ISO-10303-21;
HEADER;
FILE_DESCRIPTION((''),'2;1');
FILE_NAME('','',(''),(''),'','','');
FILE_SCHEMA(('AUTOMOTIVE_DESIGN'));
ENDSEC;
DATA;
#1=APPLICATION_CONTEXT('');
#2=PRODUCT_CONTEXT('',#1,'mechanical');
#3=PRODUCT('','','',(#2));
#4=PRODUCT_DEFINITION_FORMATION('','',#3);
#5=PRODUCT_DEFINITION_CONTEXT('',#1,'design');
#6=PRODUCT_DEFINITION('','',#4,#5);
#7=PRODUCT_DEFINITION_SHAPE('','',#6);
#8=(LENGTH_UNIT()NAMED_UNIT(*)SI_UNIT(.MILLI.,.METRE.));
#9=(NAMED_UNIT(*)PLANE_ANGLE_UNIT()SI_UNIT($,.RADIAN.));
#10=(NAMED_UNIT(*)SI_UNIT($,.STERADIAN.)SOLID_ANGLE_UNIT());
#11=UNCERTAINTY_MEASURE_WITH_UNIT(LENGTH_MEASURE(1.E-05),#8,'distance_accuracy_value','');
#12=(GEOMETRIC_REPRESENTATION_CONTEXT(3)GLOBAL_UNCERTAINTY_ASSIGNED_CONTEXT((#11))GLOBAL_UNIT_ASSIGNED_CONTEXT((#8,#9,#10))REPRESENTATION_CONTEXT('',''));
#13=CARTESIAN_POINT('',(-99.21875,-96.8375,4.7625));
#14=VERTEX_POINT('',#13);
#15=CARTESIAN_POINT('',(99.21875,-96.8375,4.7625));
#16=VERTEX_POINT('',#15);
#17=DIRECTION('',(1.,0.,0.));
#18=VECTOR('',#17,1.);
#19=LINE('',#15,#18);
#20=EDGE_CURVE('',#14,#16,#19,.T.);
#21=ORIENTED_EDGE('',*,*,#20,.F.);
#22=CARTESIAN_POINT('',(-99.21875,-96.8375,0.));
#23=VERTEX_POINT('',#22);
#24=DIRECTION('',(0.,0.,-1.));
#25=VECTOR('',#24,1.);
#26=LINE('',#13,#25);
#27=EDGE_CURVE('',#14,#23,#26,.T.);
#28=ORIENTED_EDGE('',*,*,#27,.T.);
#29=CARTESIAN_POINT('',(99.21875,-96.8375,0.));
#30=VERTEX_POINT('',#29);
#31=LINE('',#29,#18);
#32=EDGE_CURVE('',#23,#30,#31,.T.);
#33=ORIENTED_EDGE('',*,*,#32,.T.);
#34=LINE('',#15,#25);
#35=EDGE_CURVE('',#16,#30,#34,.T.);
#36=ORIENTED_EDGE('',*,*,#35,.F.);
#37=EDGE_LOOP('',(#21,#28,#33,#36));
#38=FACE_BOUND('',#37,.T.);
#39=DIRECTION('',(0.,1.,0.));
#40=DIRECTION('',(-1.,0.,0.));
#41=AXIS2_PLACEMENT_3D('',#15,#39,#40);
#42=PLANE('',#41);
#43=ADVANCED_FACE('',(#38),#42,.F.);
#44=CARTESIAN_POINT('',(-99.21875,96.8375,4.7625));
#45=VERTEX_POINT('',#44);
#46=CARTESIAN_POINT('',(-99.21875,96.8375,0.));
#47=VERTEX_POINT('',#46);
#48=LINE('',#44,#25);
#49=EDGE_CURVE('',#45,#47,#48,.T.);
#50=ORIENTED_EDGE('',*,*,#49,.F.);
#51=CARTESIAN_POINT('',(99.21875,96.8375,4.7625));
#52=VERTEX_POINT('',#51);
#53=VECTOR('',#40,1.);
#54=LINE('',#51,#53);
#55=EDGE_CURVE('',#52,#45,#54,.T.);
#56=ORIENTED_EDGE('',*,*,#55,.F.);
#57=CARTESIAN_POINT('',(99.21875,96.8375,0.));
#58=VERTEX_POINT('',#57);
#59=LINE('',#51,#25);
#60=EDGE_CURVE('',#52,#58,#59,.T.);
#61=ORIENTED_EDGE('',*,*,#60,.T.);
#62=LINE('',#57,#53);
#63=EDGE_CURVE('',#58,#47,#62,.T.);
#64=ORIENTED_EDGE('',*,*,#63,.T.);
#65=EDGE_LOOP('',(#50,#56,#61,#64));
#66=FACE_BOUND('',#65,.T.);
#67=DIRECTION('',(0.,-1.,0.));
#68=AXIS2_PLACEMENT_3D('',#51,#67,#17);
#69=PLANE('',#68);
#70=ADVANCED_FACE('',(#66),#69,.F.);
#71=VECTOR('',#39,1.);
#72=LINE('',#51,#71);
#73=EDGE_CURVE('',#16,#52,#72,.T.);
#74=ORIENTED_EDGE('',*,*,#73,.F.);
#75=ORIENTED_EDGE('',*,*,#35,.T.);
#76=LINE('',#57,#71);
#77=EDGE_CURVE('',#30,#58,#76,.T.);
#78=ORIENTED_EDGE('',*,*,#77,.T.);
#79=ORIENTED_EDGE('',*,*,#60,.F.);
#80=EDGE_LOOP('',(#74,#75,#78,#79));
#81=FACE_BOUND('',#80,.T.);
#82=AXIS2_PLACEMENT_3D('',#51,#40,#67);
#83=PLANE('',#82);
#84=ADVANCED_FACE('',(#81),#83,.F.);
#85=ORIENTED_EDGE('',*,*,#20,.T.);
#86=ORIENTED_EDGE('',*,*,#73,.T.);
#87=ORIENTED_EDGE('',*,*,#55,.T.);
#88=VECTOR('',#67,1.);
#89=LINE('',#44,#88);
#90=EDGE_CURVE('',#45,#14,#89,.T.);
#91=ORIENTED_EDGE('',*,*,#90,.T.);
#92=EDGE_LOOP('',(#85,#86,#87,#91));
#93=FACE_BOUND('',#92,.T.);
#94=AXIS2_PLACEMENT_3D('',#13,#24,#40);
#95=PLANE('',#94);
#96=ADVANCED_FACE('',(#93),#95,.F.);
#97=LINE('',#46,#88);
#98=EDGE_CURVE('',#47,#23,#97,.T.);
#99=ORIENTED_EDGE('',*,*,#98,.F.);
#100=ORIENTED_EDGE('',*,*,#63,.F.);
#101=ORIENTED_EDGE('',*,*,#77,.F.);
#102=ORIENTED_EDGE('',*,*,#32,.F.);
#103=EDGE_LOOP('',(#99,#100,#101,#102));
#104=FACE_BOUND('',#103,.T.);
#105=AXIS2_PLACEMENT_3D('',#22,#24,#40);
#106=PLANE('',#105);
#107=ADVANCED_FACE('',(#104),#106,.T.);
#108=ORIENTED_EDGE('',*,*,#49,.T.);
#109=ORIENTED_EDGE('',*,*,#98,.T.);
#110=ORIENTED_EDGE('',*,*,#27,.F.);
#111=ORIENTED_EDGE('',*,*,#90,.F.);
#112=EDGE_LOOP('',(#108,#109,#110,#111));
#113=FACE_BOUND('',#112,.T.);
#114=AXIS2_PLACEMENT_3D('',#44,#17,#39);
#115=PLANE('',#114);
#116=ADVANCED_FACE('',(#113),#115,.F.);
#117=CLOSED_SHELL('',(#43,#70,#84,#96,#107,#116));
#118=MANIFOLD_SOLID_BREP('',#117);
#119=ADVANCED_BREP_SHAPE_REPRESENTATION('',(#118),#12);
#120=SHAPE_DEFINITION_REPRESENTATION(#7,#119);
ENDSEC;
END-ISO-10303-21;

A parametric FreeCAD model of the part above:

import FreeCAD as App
import Part
import Sketcher
from FreeCAD import Vector
Q = App.Units.Quantity


def add_polygon(sketch, points):
    """Adds a closed chain of lines whose ends are joined by coincident constraints."""
    first, n = sketch.GeometryCount, len(points)
    for a, b in zip(points, points[1:] + points[:1]):
        sketch.addGeometry(Part.LineSegment(App.Vector(*a, 0), App.Vector(*b, 0)), False)
    for i in range(n):
        sketch.addConstraint(Sketcher.Constraint("Coincident", first + i, 2, first + (i + 1) % n, 1))

doc = App.newDocument("Part")
body = doc.addObject("PartDesign::Body", "Body")

# Sketch on XY plane
sketch1 = body.newObject("Sketcher::SketchObject", "Sketch")
sketch1.AttachmentSupport = (doc.getObject("XY_Plane"), [""])
sketch1.MapMode = "FlatFace"
add_polygon(sketch1, [(-99, 97), (-99, -97), (99, -97), (99, 97)])  # lines 0-3
sketch1.addConstraint([
    Sketcher.Constraint("Vertical", 0),
    Sketcher.Constraint("Horizontal", 1),
    Sketcher.Constraint("Vertical", 2),
    Sketcher.Constraint("Horizontal", 3),
    Sketcher.Constraint("Symmetric", 0, 2, 2, 2, -1, 1),
    Sketcher.Constraint("DistanceX", 1, 1, 1, 2, Q("7.8125 in")),
    Sketcher.Constraint("DistanceY", 0, 2, 0, 1, Q("7.625 in")),
])
pad1 = body.newObject("PartDesign::Pad", "Pad")
pad1.Profile = sketch1
pad1.Length = Q("0.1875 in")

doc.recompute()
